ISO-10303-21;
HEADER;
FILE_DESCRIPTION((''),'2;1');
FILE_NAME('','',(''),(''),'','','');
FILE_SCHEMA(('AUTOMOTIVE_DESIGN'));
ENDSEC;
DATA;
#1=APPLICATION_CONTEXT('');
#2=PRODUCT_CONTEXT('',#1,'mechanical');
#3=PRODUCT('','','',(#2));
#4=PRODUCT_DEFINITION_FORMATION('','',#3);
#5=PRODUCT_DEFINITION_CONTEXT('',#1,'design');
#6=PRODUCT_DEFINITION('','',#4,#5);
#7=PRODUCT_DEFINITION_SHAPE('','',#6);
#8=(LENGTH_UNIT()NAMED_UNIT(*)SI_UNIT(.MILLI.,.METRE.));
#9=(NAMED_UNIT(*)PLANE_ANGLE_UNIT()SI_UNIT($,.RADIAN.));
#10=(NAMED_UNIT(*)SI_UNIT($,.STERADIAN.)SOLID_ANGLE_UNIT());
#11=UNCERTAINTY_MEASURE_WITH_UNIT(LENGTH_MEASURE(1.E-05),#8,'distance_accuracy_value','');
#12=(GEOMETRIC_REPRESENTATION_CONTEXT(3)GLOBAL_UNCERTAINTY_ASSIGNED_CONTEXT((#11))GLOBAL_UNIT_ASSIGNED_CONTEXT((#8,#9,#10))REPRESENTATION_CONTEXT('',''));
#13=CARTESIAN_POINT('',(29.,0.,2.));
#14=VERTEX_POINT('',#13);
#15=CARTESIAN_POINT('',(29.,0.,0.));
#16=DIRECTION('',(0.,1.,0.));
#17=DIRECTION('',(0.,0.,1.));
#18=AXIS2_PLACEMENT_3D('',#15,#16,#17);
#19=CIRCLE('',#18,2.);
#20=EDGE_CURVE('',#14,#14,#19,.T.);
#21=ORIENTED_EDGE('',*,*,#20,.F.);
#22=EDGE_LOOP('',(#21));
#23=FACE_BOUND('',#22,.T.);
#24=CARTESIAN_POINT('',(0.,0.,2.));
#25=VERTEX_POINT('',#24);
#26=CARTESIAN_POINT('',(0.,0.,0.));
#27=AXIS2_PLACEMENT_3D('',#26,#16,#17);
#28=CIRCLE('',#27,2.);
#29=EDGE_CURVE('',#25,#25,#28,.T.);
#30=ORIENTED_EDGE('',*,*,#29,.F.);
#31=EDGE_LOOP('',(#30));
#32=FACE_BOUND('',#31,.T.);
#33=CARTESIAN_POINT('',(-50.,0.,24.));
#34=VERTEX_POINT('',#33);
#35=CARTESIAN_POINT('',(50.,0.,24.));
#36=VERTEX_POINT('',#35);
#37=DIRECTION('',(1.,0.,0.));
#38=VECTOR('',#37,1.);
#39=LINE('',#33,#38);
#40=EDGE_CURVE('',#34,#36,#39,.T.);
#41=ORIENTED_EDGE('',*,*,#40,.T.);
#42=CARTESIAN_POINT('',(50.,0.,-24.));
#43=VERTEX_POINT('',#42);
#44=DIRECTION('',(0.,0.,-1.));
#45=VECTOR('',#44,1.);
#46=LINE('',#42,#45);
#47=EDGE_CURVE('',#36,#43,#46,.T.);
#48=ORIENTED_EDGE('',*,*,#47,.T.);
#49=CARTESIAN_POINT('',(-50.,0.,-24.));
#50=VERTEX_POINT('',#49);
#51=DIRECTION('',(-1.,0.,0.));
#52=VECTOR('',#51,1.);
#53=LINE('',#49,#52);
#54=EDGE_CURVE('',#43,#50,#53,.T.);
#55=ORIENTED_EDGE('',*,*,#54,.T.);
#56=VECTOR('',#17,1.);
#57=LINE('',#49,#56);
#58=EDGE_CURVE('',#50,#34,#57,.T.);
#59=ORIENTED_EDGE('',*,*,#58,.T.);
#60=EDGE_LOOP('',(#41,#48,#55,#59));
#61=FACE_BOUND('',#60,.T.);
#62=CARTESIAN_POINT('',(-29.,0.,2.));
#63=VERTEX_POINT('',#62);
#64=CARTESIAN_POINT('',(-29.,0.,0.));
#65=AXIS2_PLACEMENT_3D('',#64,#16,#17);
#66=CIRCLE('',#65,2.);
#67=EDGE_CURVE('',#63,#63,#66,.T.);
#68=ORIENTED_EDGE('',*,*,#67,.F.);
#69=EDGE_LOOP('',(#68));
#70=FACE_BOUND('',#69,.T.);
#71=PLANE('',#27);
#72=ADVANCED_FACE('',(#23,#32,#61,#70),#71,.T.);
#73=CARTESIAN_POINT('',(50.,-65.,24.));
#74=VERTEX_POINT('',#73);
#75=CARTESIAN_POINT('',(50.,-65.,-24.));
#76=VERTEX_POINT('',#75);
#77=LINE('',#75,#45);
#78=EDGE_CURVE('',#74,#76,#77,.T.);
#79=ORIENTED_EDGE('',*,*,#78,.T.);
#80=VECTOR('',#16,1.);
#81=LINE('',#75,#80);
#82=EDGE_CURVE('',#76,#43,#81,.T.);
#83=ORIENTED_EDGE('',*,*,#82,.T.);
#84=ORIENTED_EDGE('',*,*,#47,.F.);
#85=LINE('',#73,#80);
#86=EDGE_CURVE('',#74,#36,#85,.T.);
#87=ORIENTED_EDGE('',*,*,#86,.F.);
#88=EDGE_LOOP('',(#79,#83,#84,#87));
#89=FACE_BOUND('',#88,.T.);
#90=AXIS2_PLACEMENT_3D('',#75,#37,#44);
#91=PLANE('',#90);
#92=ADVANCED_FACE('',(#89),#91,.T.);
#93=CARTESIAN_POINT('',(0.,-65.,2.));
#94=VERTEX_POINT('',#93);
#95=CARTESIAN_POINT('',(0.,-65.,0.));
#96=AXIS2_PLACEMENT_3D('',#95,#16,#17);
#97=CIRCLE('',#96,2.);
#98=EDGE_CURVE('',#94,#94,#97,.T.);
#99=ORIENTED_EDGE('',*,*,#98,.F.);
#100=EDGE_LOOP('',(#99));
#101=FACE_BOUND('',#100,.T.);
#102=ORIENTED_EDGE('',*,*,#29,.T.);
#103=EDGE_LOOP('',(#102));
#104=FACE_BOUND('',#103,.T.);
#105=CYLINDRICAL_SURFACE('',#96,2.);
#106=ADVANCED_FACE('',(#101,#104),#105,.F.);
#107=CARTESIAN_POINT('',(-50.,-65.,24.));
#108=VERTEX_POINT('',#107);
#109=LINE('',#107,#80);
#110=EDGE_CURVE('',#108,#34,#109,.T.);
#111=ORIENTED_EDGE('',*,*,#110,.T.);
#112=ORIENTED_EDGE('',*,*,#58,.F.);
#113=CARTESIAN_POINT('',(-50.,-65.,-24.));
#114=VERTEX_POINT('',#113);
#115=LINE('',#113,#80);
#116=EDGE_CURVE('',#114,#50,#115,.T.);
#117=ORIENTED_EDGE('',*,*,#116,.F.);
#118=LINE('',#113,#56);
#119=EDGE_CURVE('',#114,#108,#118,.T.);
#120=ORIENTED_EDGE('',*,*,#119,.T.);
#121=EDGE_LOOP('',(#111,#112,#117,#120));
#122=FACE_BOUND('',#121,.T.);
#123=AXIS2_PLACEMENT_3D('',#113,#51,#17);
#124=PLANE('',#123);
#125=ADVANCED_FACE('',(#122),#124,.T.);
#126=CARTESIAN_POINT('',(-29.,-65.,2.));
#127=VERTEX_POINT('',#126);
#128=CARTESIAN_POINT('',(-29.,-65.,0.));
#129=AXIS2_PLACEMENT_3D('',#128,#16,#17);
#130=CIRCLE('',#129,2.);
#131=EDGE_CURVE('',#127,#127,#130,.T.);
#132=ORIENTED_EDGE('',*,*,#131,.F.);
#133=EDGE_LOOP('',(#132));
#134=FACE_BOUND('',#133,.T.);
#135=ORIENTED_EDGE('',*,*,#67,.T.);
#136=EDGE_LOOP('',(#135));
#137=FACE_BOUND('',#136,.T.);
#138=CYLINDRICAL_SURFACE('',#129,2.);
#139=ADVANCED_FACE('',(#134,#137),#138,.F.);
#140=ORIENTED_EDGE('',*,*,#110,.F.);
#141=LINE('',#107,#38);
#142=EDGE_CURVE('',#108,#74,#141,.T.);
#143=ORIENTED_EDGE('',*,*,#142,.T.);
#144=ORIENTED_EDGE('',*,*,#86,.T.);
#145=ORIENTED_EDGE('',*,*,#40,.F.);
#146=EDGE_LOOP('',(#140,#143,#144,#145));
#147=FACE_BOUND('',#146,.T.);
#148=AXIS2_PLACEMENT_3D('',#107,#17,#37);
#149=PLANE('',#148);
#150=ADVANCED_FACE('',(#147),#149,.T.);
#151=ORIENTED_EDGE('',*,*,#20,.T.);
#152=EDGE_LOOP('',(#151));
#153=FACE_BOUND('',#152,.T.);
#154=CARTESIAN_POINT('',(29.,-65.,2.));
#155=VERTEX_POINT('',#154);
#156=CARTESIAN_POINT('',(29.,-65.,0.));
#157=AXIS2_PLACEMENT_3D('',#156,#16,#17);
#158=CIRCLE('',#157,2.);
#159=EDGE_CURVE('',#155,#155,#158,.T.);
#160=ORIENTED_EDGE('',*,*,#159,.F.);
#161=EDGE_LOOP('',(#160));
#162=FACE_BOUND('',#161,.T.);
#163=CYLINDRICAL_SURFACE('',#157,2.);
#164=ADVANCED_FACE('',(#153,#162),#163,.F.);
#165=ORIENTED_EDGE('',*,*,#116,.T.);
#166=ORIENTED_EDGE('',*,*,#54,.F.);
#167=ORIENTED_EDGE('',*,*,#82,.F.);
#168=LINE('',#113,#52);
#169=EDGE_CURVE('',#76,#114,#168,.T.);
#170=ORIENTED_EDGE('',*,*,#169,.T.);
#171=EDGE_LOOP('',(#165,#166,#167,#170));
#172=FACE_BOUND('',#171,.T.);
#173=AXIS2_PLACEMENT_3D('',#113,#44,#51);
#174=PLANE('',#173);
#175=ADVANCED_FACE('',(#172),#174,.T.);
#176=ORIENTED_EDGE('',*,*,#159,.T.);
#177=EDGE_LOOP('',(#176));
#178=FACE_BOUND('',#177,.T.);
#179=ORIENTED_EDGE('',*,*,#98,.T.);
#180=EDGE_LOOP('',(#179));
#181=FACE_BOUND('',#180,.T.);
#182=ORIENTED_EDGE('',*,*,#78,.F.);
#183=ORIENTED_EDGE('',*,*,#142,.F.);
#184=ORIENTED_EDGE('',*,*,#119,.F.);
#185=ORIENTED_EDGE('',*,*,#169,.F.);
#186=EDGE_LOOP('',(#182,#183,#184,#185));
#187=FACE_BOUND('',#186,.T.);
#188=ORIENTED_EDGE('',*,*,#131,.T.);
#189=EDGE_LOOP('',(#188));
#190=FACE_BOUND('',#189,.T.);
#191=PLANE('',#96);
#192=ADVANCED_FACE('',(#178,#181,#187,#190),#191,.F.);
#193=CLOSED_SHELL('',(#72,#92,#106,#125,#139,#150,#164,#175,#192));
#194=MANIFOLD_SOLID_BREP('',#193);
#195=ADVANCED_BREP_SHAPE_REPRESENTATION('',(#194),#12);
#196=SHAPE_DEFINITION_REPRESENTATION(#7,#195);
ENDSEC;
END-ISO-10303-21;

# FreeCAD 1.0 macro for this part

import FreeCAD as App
import Part
import Sketcher
from FreeCAD import Vector
Q = App.Units.Quantity


def add_polygon(sketch, points):
    """Adds a closed chain of lines whose ends are joined by coincident constraints."""
    first, n = sketch.GeometryCount, len(points)
    for a, b in zip(points, points[1:] + points[:1]):
        sketch.addGeometry(Part.LineSegment(App.Vector(*a, 0), App.Vector(*b, 0)), False)
    for i in range(n):
        sketch.addConstraint(Sketcher.Constraint("Coincident", first + i, 2, first + (i + 1) % n, 1))

doc = App.newDocument("Part")
params = doc.addObject("Spreadsheet::Sheet", "Params")
for row, (alias, value) in enumerate([
    ("sketch1_diameter", "4 mm"),
    ("sketch1_width", "100 mm"),
    ("sketch1_height", "48 mm"),
    ("pad1_length", "65 mm"),
], start=1):
    params.set(f"A{row}", alias)
    params.set(f"B{row}", "=" + value)
    params.setAlias(f"B{row}", alias)

body = doc.addObject("PartDesign::Body", "Body")

sketch1 = body.newObject("Sketcher::SketchObject", "Sketch")
sketch1.AttachmentSupport = (doc.getObject("XZ_Plane"), [""])
sketch1.MapMode = "FlatFace"
add_polygon(sketch1, [(-50, -24), (-50, 24), (50, 24), (50, -24)])
sketch1.addGeometry(Part.Circle(Vector(-29, 0, 0), Vector(0, 0, 1), 2), False)
sketch1.addGeometry(Part.Circle(Vector(0, 0, 0), Vector(0, 0, 1), 2), False)
sketch1.addGeometry(Part.Circle(Vector(29, 0, 0), Vector(0, 0, 1), 2), False)
sketch1.addConstraint([
    Sketcher.Constraint("Vertical", 0),
    Sketcher.Constraint("Horizontal", 1),
    Sketcher.Constraint("Vertical", 2),
    Sketcher.Constraint("Horizontal", 3),
    Sketcher.Constraint("Coincident", 5, 3, -1, 1),
    Sketcher.Constraint("Equal", 4, 5),
    Sketcher.Constraint("Equal", 5, 6),
    Sketcher.Constraint("Symmetric", 4, 3, 6, 3, -1, 1),
    Sketcher.Constraint("Symmetric", 0, 2, 2, 2, -1, 1),
    Sketcher.Constraint("PointOnObject", 4, 3, -1),
    Sketcher.Constraint("Diameter", 4, Q("4 mm")),
    Sketcher.Constraint("DistanceX", 1, 1, 1, 2, Q("100 mm")),
    Sketcher.Constraint("DistanceY", 0, 1, 0, 2, Q("48 mm")),
    Sketcher.Constraint("DistanceX", 4, 3, -1, 1, Q("29 mm")),
])
sketch1.setExpression("Constraints[14]", "Params.sketch1_diameter")
sketch1.setExpression("Constraints[15]", "Params.sketch1_width")
sketch1.setExpression("Constraints[16]", "Params.sketch1_height")
pad1 = body.newObject("PartDesign::Pad", "Pad")
pad1.Profile = sketch1
pad1.setExpression("Length", "Params.pad1_length")

doc.recompute()
